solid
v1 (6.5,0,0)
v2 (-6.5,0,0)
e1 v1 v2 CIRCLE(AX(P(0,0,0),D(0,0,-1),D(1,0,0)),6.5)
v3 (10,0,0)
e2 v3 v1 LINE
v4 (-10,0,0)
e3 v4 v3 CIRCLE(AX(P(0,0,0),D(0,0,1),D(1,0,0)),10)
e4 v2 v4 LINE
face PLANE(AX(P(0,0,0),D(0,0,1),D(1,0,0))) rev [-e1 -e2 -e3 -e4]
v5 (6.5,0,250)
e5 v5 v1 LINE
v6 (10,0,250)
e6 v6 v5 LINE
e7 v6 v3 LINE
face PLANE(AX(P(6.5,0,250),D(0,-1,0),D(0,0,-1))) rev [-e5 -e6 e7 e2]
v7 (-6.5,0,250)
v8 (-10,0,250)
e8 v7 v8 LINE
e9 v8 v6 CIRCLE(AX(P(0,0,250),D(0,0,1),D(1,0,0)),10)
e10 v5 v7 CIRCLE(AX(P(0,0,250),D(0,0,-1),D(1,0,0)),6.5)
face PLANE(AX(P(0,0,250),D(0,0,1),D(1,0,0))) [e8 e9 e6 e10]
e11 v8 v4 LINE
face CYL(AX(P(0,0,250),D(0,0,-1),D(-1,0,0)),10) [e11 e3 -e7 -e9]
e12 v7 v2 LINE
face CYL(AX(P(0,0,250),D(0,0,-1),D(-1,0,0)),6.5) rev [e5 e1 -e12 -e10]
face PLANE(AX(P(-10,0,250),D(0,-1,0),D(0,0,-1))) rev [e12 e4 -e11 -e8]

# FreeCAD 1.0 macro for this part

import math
import FreeCAD as App
import Part
import Sketcher
from FreeCAD import Vector
Q = App.Units.Quantity

doc = App.newDocument("Part")
body = doc.addObject("PartDesign::Body", "Body")

# Sketch on XY plane
sketch1 = body.newObject("Sketcher::SketchObject", "Sketch")
sketch1.AttachmentSupport = (doc.getObject("XY_Plane"), [""])
sketch1.MapMode = "FlatFace"
sketch1.addGeometry([
    Part.LineSegment(Vector(-6.5, 0, 0), Vector(-10, 0, 0)),
    Part.ArcOfCircle(Part.Circle(Vector(0, 0, 0), Vector(0, 0, 1), 10), math.radians(180), math.radians(360)),
    Part.LineSegment(Vector(10, 0, 0), Vector(6.5, 0, 0)),
    Part.ArcOfCircle(Part.Circle(Vector(0, 0, 0), Vector(0, 0, 1), 6.5), math.radians(180), math.radians(360)),
], False)
sketch1.addConstraint([
    Sketcher.Constraint("Coincident", 0, 2, 1, 1),
    Sketcher.Constraint("Coincident", 1, 2, 2, 1),
    Sketcher.Constraint("Coincident", 2, 2, 3, 2),
    Sketcher.Constraint("Coincident", 3, 1, 0, 1),
    Sketcher.Constraint("Horizontal", 0),
    Sketcher.Constraint("Horizontal", 2),
    Sketcher.Constraint("Coincident", 1, 3, -1, 1),
    Sketcher.Constraint("Coincident", 3, 3, -1, 1),
    Sketcher.Constraint("PointOnObject", 0, 2, -1),
    Sketcher.Constraint("PointOnObject", 1, 2, -1),
    Sketcher.Constraint("Radius", 1, Q("10 mm")),
    Sketcher.Constraint("Radius", 3, Q("6.5 mm")),
])
pad1 = body.newObject("PartDesign::Pad", "Pad")
pad1.Profile = sketch1
pad1.Length = 250

doc.recompute()
